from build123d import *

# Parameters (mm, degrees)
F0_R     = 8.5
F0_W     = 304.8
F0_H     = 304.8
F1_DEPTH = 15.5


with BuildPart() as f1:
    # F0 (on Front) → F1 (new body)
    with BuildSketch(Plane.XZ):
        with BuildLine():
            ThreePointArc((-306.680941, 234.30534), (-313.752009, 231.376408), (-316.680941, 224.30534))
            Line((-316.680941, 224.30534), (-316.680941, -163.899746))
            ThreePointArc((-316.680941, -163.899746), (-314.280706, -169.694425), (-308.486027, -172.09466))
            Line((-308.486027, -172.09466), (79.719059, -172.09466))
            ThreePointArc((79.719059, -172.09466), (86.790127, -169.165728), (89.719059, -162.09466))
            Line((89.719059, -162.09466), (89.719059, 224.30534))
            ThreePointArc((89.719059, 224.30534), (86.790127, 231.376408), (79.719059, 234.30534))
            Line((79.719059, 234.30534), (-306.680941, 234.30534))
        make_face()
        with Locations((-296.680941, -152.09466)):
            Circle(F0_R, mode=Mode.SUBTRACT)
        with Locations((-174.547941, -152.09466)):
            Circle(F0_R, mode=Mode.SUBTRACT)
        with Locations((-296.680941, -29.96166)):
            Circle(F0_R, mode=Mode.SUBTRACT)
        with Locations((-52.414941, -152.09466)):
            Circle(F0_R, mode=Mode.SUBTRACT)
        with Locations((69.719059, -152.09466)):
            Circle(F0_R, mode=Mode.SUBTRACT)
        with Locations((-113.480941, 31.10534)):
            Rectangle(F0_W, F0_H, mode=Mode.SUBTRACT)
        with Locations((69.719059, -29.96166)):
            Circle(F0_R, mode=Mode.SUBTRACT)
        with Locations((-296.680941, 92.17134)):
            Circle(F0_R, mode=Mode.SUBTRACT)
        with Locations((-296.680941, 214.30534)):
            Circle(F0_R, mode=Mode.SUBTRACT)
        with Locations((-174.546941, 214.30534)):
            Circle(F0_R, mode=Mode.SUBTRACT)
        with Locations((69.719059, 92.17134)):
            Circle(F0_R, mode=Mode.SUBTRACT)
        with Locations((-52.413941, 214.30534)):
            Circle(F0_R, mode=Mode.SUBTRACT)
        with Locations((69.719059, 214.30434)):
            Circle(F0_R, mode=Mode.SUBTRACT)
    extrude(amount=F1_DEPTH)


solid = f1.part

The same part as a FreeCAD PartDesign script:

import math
import FreeCAD as App
import Part
import Sketcher
Q = App.Units.Quantity

doc = App.newDocument("Part")
body = doc.addObject("PartDesign::Body", "Body")

# Sketch on XZ plane
sketch1 = body.newObject("Sketcher::SketchObject", "Sketch")
sketch1.AttachmentSupport = (doc.getObject("XZ_Plane"), [""])
sketch1.MapMode = "FlatFace"
sketch1.addGeometry([
    Part.ArcOfCircle(Part.Circle(App.Vector(-306.680942, 224.305341, 0), App.Vector(0, 0, 1), 9.999999), math.radians(89.999996), math.radians(180.000004)),  # 0
    Part.LineSegment(App.Vector(-316.680941, 224.30534, 0), App.Vector(-316.680941, -163.899746, 0)),  # 1
    Part.ArcOfCircle(Part.Circle(App.Vector(-308.486026, -163.899745, 0), App.Vector(0, 0, 1), 8.194915), math.radians(-179.999994), math.radians(-90.000006)),  # 2
    Part.LineSegment(App.Vector(-308.486027, -172.09466, 0), App.Vector(79.719059, -172.09466, 0)),  # 3
    Part.ArcOfCircle(Part.Circle(App.Vector(79.71906, -162.094661, 0), App.Vector(0, 0, 1), 9.999999), math.radians(-90.000004), math.radians(0.000004)),  # 4
    Part.LineSegment(App.Vector(89.719059, -162.09466, 0), App.Vector(89.719059, 224.30534, 0)),  # 5
    Part.ArcOfCircle(Part.Circle(App.Vector(79.71906, 224.305341, 0), App.Vector(0, 0, 1), 9.999999), math.radians(-0.000004), math.radians(90.000004)),  # 6
    Part.LineSegment(App.Vector(79.719059, 234.30534, 0), App.Vector(-306.680941, 234.30534, 0)),  # 7
    Part.Circle(App.Vector(-296.680941, -152.09466, 0), App.Vector(0, 0, 1), 8.5),  # 8
    Part.Circle(App.Vector(-174.547941, -152.09466, 0), App.Vector(0, 0, 1), 8.5),  # 9
    Part.Circle(App.Vector(-296.680941, -29.96166, 0), App.Vector(0, 0, 1), 8.5),  # 10
    Part.Circle(App.Vector(-52.414941, -152.09466, 0), App.Vector(0, 0, 1), 8.5),  # 11
    Part.Circle(App.Vector(69.719059, -152.09466, 0), App.Vector(0, 0, 1), 8.5),  # 12
    Part.Circle(App.Vector(69.719059, -29.96166, 0), App.Vector(0, 0, 1), 8.5),  # 13
    Part.Circle(App.Vector(-296.680941, 92.17134, 0), App.Vector(0, 0, 1), 8.5),  # 14
    Part.Circle(App.Vector(-296.680941, 214.30534, 0), App.Vector(0, 0, 1), 8.5),  # 15
    Part.Circle(App.Vector(-174.546941, 214.30534, 0), App.Vector(0, 0, 1), 8.5),  # 16
    Part.LineSegment(App.Vector(38.919059, -121.29466, 0), App.Vector(-265.880941, -121.29466, 0)),  # 17
    Part.LineSegment(App.Vector(-265.880941, -121.29466, 0), App.Vector(-265.880941, 183.50534, 0)),  # 18
    Part.LineSegment(App.Vector(-265.880941, 183.50534, 0), App.Vector(38.919059, 183.50534, 0)),  # 19
    Part.LineSegment(App.Vector(38.919059, 183.50534, 0), App.Vector(38.919059, -121.29466, 0)),  # 20
    Part.Circle(App.Vector(69.719059, 92.17134, 0), App.Vector(0, 0, 1), 8.5),  # 21
    Part.Circle(App.Vector(-52.413941, 214.30534, 0), App.Vector(0, 0, 1), 8.5),  # 22
    Part.Circle(App.Vector(69.719059, 214.30434, 0), App.Vector(0, 0, 1), 8.5),  # 23
], False)
sketch1.addConstraint([
    Sketcher.Constraint("Tangent", 0, 2, 1, 1),
    Sketcher.Constraint("Tangent", 1, 2, 2, 1),
    Sketcher.Constraint("Tangent", 2, 2, 3, 1),
    Sketcher.Constraint("Tangent", 3, 2, 4, 1),
    Sketcher.Constraint("Tangent", 4, 2, 5, 1),
    Sketcher.Constraint("Tangent", 5, 2, 6, 1),
    Sketcher.Constraint("Tangent", 6, 2, 7, 1),
    Sketcher.Constraint("Tangent", 7, 2, 0, 1),
    Sketcher.Constraint("Coincident", 17, 2, 18, 1),
    Sketcher.Constraint("Coincident", 18, 2, 19, 1),
    Sketcher.Constraint("Coincident", 19, 2, 20, 1),
    Sketcher.Constraint("Coincident", 20, 2, 17, 1),
    Sketcher.Constraint("Vertical", 1),
    Sketcher.Constraint("Horizontal", 3),
    Sketcher.Constraint("Vertical", 5),
    Sketcher.Constraint("Horizontal", 7),
    Sketcher.Constraint("Horizontal", 17),
    Sketcher.Constraint("Vertical", 18),
    Sketcher.Constraint("Horizontal", 19),
    Sketcher.Constraint("Vertical", 20),
    Sketcher.Constraint("Equal", 0, 4),
    Sketcher.Constraint("Equal", 4, 6),
    Sketcher.Constraint("Equal", 8, 9),
    Sketcher.Constraint("Equal", 9, 10),
    Sketcher.Constraint("Equal", 10, 11),
    Sketcher.Constraint("Equal", 11, 12),
    Sketcher.Constraint("Equal", 12, 13),
    Sketcher.Constraint("Equal", 13, 14),
    Sketcher.Constraint("Equal", 14, 15),
    Sketcher.Constraint("Equal", 15, 16),
    Sketcher.Constraint("Equal", 16, 21),
    Sketcher.Constraint("Equal", 21, 22),
    Sketcher.Constraint("Equal", 22, 23),
    Sketcher.Constraint("Horizontal", 8, 3, 9, 3),
    Sketcher.Constraint("Horizontal", 9, 3, 11, 3),
    Sketcher.Constraint("Horizontal", 11, 3, 12, 3),
    Sketcher.Constraint("Horizontal", 10, 3, 13, 3),
    Sketcher.Constraint("Horizontal", 15, 3, 16, 3),
    Sketcher.Constraint("Horizontal", 14, 3, 21, 3),
    Sketcher.Constraint("Horizontal", 16, 3, 22, 3),
    Sketcher.Constraint("Vertical", 8, 3, 10, 3),
    Sketcher.Constraint("Vertical", 12, 3, 13, 3),
    Sketcher.Constraint("Vertical", 10, 3, 14, 3),
    Sketcher.Constraint("Vertical", 14, 3, 15, 3),
    Sketcher.Constraint("Vertical", 13, 3, 21, 3),
    Sketcher.Constraint("Vertical", 21, 3, 23, 3),
    Sketcher.Constraint("Equal", 3, 1),
    Sketcher.Constraint("Equal", 19, 18),
    Sketcher.Constraint("Diameter", 8, Q("17 mm")),
    Sketcher.Constraint("Radius", 0, Q("9.999999 mm")),
    Sketcher.Constraint("DistanceX", 7, 2, 7, 1, Q("386.4 mm")),
    Sketcher.Constraint("DistanceX", 17, 2, 17, 1, Q("304.8 mm")),
    Sketcher.Constraint("DistanceX", 0, 3, 8, 3, Q("10.000001 mm")),
    Sketcher.Constraint("DistanceY", 4, 3, 8, 3, Q("10.000001 mm")),
    Sketcher.Constraint("DistanceX", 12, 3, 4, 3, Q("10.000001 mm")),
    Sketcher.Constraint("DistanceY", 15, 3, 0, 3, Q("10.000001 mm")),
    Sketcher.Constraint("DistanceX", 8, 3, 17, 2, Q("30.8 mm")),
    Sketcher.Constraint("DistanceY", 8, 3, 17, 2, Q("30.8 mm")),
    Sketcher.Constraint("Radius", 2, Q("8.194915 mm")),
    Sketcher.Constraint("DistanceX", 8, 3, 9, 3, Q("122.133 mm")),
    Sketcher.Constraint("DistanceY", 8, 3, 10, 3, Q("122.133 mm")),
    Sketcher.Constraint("DistanceX", 9, 3, 11, 3, Q("122.133 mm")),
    Sketcher.Constraint("DistanceY", 10, 3, 14, 3, Q("122.133 mm")),
    Sketcher.Constraint("DistanceX", 15, 3, 16, 3, Q("122.134 mm")),
    Sketcher.Constraint("DistanceX", 16, 3, 22, 3, Q("122.133 mm")),
    Sketcher.Constraint("DistanceY", 23, 3, 6, 3, Q("10.001001 mm")),
    Sketcher.Constraint("DistanceX", 0, 3, -1, 1, Q("306.680942 mm")),
    Sketcher.Constraint("DistanceY", -1, 1, 0, 3, Q("224.305341 mm")),
])
pad1 = body.newObject("PartDesign::Pad", "Pad")
pad1.Profile = sketch1
pad1.Length = 15.5

doc.recompute()
